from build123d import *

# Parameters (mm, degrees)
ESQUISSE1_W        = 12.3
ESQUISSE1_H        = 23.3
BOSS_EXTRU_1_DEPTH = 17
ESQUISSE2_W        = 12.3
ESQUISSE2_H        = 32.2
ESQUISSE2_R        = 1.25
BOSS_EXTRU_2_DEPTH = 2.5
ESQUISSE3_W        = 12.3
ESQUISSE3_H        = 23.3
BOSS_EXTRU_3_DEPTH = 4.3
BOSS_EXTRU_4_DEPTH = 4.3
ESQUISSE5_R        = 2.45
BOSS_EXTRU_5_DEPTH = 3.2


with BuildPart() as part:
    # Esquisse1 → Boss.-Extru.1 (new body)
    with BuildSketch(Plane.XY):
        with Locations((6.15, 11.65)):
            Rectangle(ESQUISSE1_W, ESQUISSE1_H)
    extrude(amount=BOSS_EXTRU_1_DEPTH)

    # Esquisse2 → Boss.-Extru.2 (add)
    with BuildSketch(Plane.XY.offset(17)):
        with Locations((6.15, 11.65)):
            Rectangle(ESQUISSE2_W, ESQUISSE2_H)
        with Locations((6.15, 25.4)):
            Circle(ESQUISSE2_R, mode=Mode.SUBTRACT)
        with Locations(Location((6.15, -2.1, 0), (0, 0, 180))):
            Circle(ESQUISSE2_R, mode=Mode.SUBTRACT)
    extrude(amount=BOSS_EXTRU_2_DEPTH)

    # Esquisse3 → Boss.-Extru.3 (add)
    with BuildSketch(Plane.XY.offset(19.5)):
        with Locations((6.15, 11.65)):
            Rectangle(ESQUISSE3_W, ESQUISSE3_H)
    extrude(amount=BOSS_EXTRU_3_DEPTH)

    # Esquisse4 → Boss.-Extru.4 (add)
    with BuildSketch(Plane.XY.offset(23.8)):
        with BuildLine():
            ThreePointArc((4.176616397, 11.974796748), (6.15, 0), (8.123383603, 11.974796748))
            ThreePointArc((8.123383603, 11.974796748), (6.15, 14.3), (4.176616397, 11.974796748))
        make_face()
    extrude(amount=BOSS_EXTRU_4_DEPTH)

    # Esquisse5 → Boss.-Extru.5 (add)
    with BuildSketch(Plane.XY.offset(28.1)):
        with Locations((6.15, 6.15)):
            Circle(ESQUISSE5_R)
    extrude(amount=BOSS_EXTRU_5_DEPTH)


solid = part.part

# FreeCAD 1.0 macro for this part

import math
import FreeCAD as App
import Part
import Sketcher
from FreeCAD import Vector
Q = App.Units.Quantity

doc = App.newDocument("Part")
params = doc.addObject("Spreadsheet::Sheet", "Params")
for row, (alias, value) in enumerate([
    ("sketch1_width", "12.3 mm"),
    ("sketch1_height", "23.3 mm"),
    ("pad1_length", "17 mm"),
    ("sketch2_diameter", "2.5 mm"),
    ("sketch2_width", "12.3 mm"),
    ("sketch2_height", "32.2 mm"),
    ("pad2_length", "2.5 mm"),
    ("sketch3_width", "12.3 mm"),
    ("sketch3_height", "23.3 mm"),
    ("pad3_length", "4.3 mm"),
    ("sketch4_radius", "2 mm"),
    ("sketch4_radius2", "6.15 mm"),
    ("pad4_length", "4.3 mm"),
    ("sketch5_diameter", "4.9 mm"),
    ("pad5_length", "3.2 mm"),
], start=1):
    params.set(f"A{row}", alias)
    params.set(f"B{row}", "=" + value)
    params.setAlias(f"B{row}", alias)

body = doc.addObject("PartDesign::Body", "Body")

# Sketch on XY plane
sketch1 = body.newObject("Sketcher::SketchObject", "Sketch")
sketch1.AttachmentSupport = (doc.getObject("XY_Plane"), [""])
sketch1.MapMode = "FlatFace"
sketch1.addGeometry(Part.LineSegment(Vector(0, 23.3, 0), Vector(0, 0, 0)), False)
sketch1.addGeometry(Part.LineSegment(Vector(0, 0, 0), Vector(12.3, 0, 0)), False)
sketch1.addGeometry(Part.LineSegment(Vector(12.3, 0, 0), Vector(12.3, 23.3, 0)), False)
sketch1.addGeometry(Part.LineSegment(Vector(12.3, 23.3, 0), Vector(0, 23.3, 0)), False)
sketch1.addConstraint(Sketcher.Constraint("Coincident", 0, 2, 1, 1))
sketch1.addConstraint(Sketcher.Constraint("Coincident", 1, 2, 2, 1))
sketch1.addConstraint(Sketcher.Constraint("Coincident", 2, 2, 3, 1))
sketch1.addConstraint(Sketcher.Constraint("Coincident", 3, 2, 0, 1))
sketch1.addConstraint(Sketcher.Constraint("Vertical", 0))
sketch1.addConstraint(Sketcher.Constraint("Horizontal", 1))
sketch1.addConstraint(Sketcher.Constraint("Vertical", 2))
sketch1.addConstraint(Sketcher.Constraint("Horizontal", 3))
sketch1.addConstraint(Sketcher.Constraint("Coincident", 0, 2, -1, 1))
sketch1.addConstraint(Sketcher.Constraint("DistanceX", 1, 1, 1, 2, Q("12.3 mm")))
sketch1.addConstraint(Sketcher.Constraint("DistanceY", 0, 2, 0, 1, Q("23.3 mm")))
sketch1.setExpression("Constraints[9]", "Params.sketch1_width")
sketch1.setExpression("Constraints[10]", "Params.sketch1_height")
pad1 = body.newObject("PartDesign::Pad", "Pad")
pad1.Profile = sketch1
pad1.setExpression("Length", "Params.pad1_length")

# Sketch on XY plane
sketch2 = body.newObject("Sketcher::SketchObject", "Sketch001")
sketch2.AttachmentSupport = (doc.getObject("XY_Plane"), [""])
sketch2.MapMode = "FlatFace"
sketch2.AttachmentOffset = App.Placement(Vector(0, 0, 17), App.Rotation())
sketch2.addGeometry(Part.LineSegment(Vector(0, 27.75, 0), Vector(0, -4.45, 0)), False)
sketch2.addGeometry(Part.LineSegment(Vector(0, -4.45, 0), Vector(12.3, -4.45, 0)), False)
sketch2.addGeometry(Part.LineSegment(Vector(12.3, -4.45, 0), Vector(12.3, 27.75, 0)), False)
sketch2.addGeometry(Part.LineSegment(Vector(12.3, 27.75, 0), Vector(0, 27.75, 0)), False)
sketch2.addGeometry(Part.Circle(Vector(6.15, -2.1, 0), Vector(0, 0, 1), 1.25), False)
sketch2.addGeometry(Part.Circle(Vector(6.15, 25.4, 0), Vector(0, 0, 1), 1.25), False)
sketch2.addConstraint(Sketcher.Constraint("Coincident", 0, 2, 1, 1))
sketch2.addConstraint(Sketcher.Constraint("Coincident", 1, 2, 2, 1))
sketch2.addConstraint(Sketcher.Constraint("Coincident", 2, 2, 3, 1))
sketch2.addConstraint(Sketcher.Constraint("Coincident", 3, 2, 0, 1))
sketch2.addConstraint(Sketcher.Constraint("Vertical", 0))
sketch2.addConstraint(Sketcher.Constraint("Horizontal", 1))
sketch2.addConstraint(Sketcher.Constraint("Vertical", 2))
sketch2.addConstraint(Sketcher.Constraint("Horizontal", 3))
sketch2.addConstraint(Sketcher.Constraint("Equal", 4, 5))
sketch2.addConstraint(Sketcher.Constraint("PointOnObject", 0, 2, -2))
sketch2.addConstraint(Sketcher.Constraint("Vertical", 4, 3, 5, 3))
sketch2.addConstraint(Sketcher.Constraint("Diameter", 4, Q("2.5 mm")))
sketch2.addConstraint(Sketcher.Constraint("DistanceX", 1, 1, 1, 2, Q("12.3 mm")))
sketch2.addConstraint(Sketcher.Constraint("DistanceY", 0, 2, 0, 1, Q("32.2 mm")))
sketch2.addConstraint(Sketcher.Constraint("DistanceY", 4, 3, -1, 1, Q("2.1 mm")))
sketch2.addConstraint(Sketcher.Constraint("DistanceY", -1, 1, 5, 3, Q("25.4 mm")))
sketch2.addConstraint(Sketcher.Constraint("DistanceX", -1, 1, 4, 3, Q("6.15 mm")))
sketch2.addConstraint(Sketcher.Constraint("DistanceY", 0, 2, -1, 1, Q("4.45 mm")))
sketch2.setExpression("Constraints[11]", "Params.sketch2_diameter")
sketch2.setExpression("Constraints[12]", "Params.sketch2_width")
sketch2.setExpression("Constraints[13]", "Params.sketch2_height")
pad2 = body.newObject("PartDesign::Pad", "Pad001")
pad2.Profile = sketch2
pad2.setExpression("Length", "Params.pad2_length")

# Sketch on XY plane
sketch3 = body.newObject("Sketcher::SketchObject", "Sketch002")
sketch3.AttachmentSupport = (doc.getObject("XY_Plane"), [""])
sketch3.MapMode = "FlatFace"
sketch3.AttachmentOffset = App.Placement(Vector(0, 0, 19.5), App.Rotation())
sketch3.addGeometry(Part.LineSegment(Vector(0, 23.3, 0), Vector(0, 0, 0)), False)
sketch3.addGeometry(Part.LineSegment(Vector(0, 0, 0), Vector(12.3, 0, 0)), False)
sketch3.addGeometry(Part.LineSegment(Vector(12.3, 0, 0), Vector(12.3, 23.3, 0)), False)
sketch3.addGeometry(Part.LineSegment(Vector(12.3, 23.3, 0), Vector(0, 23.3, 0)), False)
sketch3.addConstraint(Sketcher.Constraint("Coincident", 0, 2, 1, 1))
sketch3.addConstraint(Sketcher.Constraint("Coincident", 1, 2, 2, 1))
sketch3.addConstraint(Sketcher.Constraint("Coincident", 2, 2, 3, 1))
sketch3.addConstraint(Sketcher.Constraint("Coincident", 3, 2, 0, 1))
sketch3.addConstraint(Sketcher.Constraint("Vertical", 0))
sketch3.addConstraint(Sketcher.Constraint("Horizontal", 1))
sketch3.addConstraint(Sketcher.Constraint("Vertical", 2))
sketch3.addConstraint(Sketcher.Constraint("Horizontal", 3))
sketch3.addConstraint(Sketcher.Constraint("Coincident", 0, 2, -1, 1))
sketch3.addConstraint(Sketcher.Constraint("DistanceX", 1, 1, 1, 2, Q("12.3 mm")))
sketch3.addConstraint(Sketcher.Constraint("DistanceY", 0, 2, 0, 1, Q("23.3 mm")))
sketch3.setExpression("Constraints[9]", "Params.sketch3_width")
sketch3.setExpression("Constraints[10]", "Params.sketch3_height")
pad3 = body.newObject("PartDesign::Pad", "Pad002")
pad3.Profile = sketch3
pad3.setExpression("Length", "Params.pad3_length")

# Sketch on XY plane
sketch4 = body.newObject("Sketcher::SketchObject", "Sketch003")
sketch4.AttachmentSupport = (doc.getObject("XY_Plane"), [""])
sketch4.MapMode = "FlatFace"
sketch4.AttachmentOffset = App.Placement(Vector(0, 0, 23.8), App.Rotation())
sketch4.addGeometry(Part.ArcOfCircle(Part.Circle(Vector(6.15, 6.15, 0), Vector(0, 0, 1), 6.15), math.radians(108.715873), math.radians(431.284127)), False)
sketch4.addGeometry(Part.ArcOfCircle(Part.Circle(Vector(6.15, 12.3, 0), Vector(0, 0, 1), 2), math.radians(-9.357936), math.radians(189.357936)), False)
sketch4.addConstraint(Sketcher.Constraint("Coincident", 0, 1, 1, 2))
sketch4.addConstraint(Sketcher.Constraint("Coincident", 1, 1, 0, 2))
sketch4.addConstraint(Sketcher.Constraint("Horizontal", 0, 1, 1, 1))
sketch4.addConstraint(Sketcher.Constraint("Radius", 1, Q("2 mm")))
sketch4.addConstraint(Sketcher.Constraint("Radius", 0, Q("6.15 mm")))
sketch4.addConstraint(Sketcher.Constraint("DistanceY", -1, 1, 1, 3, Q("12.3 mm")))
sketch4.addConstraint(Sketcher.Constraint("DistanceX", -1, 1, 0, 3, Q("6.15 mm")))
sketch4.addConstraint(Sketcher.Constraint("DistanceY", -1, 1, 0, 3, Q("6.15 mm")))
sketch4.setExpression("Constraints[3]", "Params.sketch4_radius")
sketch4.setExpression("Constraints[4]", "Params.sketch4_radius2")
pad4 = body.newObject("PartDesign::Pad", "Pad003")
pad4.Profile = sketch4
pad4.setExpression("Length", "Params.pad4_length")

# Sketch on XY plane
sketch5 = body.newObject("Sketcher::SketchObject", "Sketch004")
sketch5.AttachmentSupport = (doc.getObject("XY_Plane"), [""])
sketch5.MapMode = "FlatFace"
sketch5.AttachmentOffset = App.Placement(Vector(0, 0, 28.1), App.Rotation())
sketch5.addGeometry(Part.Circle(Vector(6.15, 6.15, 0), Vector(0, 0, 1), 2.45), False)
sketch5.addConstraint(Sketcher.Constraint("Diameter", 0, Q("4.9 mm")))
sketch5.addConstraint(Sketcher.Constraint("DistanceX", -1, 1, 0, 3, Q("6.15 mm")))
sketch5.addConstraint(Sketcher.Constraint("DistanceY", -1, 1, 0, 3, Q("6.15 mm")))
sketch5.setExpression("Constraints[0]", "Params.sketch5_diameter")
pad5 = body.newObject("PartDesign::Pad", "Pad004")
pad5.Profile = sketch5
pad5.setExpression("Length", "Params.pad5_length")

doc.recompute()
